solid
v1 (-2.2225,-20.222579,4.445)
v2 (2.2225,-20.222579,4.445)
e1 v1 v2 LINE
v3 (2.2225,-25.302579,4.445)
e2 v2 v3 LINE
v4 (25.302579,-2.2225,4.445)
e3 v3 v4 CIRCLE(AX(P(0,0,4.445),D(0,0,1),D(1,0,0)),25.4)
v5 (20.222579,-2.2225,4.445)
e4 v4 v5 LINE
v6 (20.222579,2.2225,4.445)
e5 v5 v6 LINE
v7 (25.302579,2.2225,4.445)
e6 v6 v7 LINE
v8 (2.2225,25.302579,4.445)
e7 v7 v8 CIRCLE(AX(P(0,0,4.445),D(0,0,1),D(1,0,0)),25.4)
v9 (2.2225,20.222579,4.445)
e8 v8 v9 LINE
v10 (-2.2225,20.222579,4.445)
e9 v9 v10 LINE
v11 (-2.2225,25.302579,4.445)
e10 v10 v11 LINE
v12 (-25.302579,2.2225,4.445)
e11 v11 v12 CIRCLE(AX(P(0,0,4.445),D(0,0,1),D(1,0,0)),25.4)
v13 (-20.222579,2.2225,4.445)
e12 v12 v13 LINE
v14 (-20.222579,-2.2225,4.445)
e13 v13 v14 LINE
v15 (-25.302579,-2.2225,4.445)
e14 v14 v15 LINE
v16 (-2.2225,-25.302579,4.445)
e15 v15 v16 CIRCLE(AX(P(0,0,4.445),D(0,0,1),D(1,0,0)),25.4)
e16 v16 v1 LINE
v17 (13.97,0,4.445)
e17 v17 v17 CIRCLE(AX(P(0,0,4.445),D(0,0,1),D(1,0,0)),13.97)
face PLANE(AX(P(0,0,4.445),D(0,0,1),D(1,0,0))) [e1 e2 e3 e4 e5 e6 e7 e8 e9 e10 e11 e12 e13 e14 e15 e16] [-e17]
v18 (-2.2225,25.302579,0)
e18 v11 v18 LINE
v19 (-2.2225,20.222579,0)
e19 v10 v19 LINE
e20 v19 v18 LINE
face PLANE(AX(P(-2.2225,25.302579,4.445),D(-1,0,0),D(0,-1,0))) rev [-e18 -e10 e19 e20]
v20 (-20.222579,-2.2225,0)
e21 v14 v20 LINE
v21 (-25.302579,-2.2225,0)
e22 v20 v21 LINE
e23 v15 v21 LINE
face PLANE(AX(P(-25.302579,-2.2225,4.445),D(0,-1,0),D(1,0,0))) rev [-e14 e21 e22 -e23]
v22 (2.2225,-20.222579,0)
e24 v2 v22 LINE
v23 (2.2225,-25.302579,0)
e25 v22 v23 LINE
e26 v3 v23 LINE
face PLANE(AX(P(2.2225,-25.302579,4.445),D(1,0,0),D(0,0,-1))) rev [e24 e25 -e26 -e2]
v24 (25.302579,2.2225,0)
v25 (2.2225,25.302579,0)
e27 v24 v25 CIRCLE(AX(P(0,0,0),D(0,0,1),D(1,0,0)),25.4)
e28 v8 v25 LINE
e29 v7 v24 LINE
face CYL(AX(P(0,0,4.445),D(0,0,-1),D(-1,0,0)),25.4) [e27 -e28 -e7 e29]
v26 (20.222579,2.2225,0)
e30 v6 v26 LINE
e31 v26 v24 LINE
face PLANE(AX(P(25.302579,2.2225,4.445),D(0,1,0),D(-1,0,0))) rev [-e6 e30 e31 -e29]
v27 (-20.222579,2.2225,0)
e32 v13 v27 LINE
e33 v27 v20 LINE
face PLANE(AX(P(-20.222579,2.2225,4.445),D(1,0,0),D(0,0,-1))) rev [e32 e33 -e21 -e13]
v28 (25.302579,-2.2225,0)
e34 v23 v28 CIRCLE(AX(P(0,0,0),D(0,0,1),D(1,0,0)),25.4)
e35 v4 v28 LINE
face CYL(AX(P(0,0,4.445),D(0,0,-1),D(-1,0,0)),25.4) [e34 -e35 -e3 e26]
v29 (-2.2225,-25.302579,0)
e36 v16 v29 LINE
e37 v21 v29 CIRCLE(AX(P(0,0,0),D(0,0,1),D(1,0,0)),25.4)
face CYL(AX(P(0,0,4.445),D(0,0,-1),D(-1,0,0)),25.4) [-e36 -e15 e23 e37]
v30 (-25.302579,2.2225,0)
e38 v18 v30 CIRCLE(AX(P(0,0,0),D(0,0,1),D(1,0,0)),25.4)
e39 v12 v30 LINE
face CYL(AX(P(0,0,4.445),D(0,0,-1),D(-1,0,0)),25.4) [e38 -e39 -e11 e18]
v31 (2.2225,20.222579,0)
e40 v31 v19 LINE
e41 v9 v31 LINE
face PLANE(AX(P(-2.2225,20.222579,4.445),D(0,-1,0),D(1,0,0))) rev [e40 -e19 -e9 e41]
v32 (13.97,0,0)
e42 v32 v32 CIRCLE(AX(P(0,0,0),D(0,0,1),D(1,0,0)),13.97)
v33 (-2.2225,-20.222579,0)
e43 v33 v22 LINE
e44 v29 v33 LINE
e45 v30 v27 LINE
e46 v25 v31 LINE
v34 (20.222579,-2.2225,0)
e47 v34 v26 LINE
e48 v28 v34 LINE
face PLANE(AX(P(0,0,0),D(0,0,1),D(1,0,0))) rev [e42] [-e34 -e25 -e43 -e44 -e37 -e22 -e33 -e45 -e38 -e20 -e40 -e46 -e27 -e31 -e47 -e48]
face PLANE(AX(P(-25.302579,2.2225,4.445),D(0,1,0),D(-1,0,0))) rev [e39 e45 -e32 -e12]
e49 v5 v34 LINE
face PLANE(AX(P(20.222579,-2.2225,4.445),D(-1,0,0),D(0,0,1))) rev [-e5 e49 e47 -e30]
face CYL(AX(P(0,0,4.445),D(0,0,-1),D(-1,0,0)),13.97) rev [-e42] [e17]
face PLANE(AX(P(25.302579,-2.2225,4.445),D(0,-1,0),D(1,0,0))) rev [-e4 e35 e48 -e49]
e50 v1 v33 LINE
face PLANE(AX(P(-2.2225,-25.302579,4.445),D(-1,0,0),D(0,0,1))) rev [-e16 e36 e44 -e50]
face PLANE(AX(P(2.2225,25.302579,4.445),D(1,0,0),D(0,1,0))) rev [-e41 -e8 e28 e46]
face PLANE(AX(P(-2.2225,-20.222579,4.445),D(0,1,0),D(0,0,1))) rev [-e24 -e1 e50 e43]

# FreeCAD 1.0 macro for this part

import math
import FreeCAD as App
import Part
import Sketcher
from FreeCAD import Vector
Q = App.Units.Quantity

doc = App.newDocument("Part")
body = doc.addObject("PartDesign::Body", "Body")

# Sketch on XY plane
sketch1 = body.newObject("Sketcher::SketchObject", "Sketch")
sketch1.AttachmentSupport = (doc.getObject("XY_Plane"), [""])
sketch1.MapMode = "FlatFace"
sketch1.addGeometry(Part.LineSegment(Vector(25.3, -2.2, 0), Vector(20.2, -2.2, 0)), False)
sketch1.addGeometry(Part.LineSegment(Vector(20.2, -2.2, 0), Vector(20.2, 2.2, 0)), False)
sketch1.addGeometry(Part.LineSegment(Vector(20.2, 2.2, 0), Vector(25.3, 2.2, 0)), False)
sketch1.addGeometry(Part.ArcOfCircle(Part.Circle(Vector(0, 0, 0), Vector(0, 0, 1), 25.4), math.radians(5), math.radians(85)), False)
sketch1.addGeometry(Part.LineSegment(Vector(2.2, 25.3, 0), Vector(2.2, 20.2, 0)), False)
sketch1.addGeometry(Part.LineSegment(Vector(2.2, 20.2, 0), Vector(-2.2, 20.2, 0)), False)
sketch1.addGeometry(Part.LineSegment(Vector(-2.2, 20.2, 0), Vector(-2.2, 25.3, 0)), False)
sketch1.addGeometry(Part.ArcOfCircle(Part.Circle(Vector(0, 0, 0), Vector(0, 0, 1), 25.4), math.radians(95), math.radians(175)), False)
sketch1.addGeometry(Part.LineSegment(Vector(-25.3, 2.2, 0), Vector(-20.2, 2.2, 0)), False)
sketch1.addGeometry(Part.LineSegment(Vector(-20.2, 2.2, 0), Vector(-20.2, -2.2, 0)), False)
sketch1.addGeometry(Part.LineSegment(Vector(-20.2, -2.2, 0), Vector(-25.3, -2.2, 0)), False)
sketch1.addGeometry(Part.ArcOfCircle(Part.Circle(Vector(0, 0, 0), Vector(0, 0, 1), 25.4), math.radians(-175), math.radians(-95)), False)
sketch1.addGeometry(Part.LineSegment(Vector(-2.2, -25.3, 0), Vector(-2.2, -20.2, 0)), False)
sketch1.addGeometry(Part.LineSegment(Vector(-2.2, -20.2, 0), Vector(2.2, -20.2, 0)), False)
sketch1.addGeometry(Part.LineSegment(Vector(2.2, -20.2, 0), Vector(2.2, -25.3, 0)), False)
sketch1.addGeometry(Part.ArcOfCircle(Part.Circle(Vector(0, 0, 0), Vector(0, 0, 1), 25.4), math.radians(-85), math.radians(-5)), False)
sketch1.addGeometry(Part.Circle(Vector(0, 0, 0), Vector(0, 0, 1), 14), False)
sketch1.addConstraint(Sketcher.Constraint("Coincident", 0, 2, 1, 1))
sketch1.addConstraint(Sketcher.Constraint("Coincident", 1, 2, 2, 1))
sketch1.addConstraint(Sketcher.Constraint("Coincident", 2, 2, 3, 1))
sketch1.addConstraint(Sketcher.Constraint("Coincident", 3, 2, 4, 1))
sketch1.addConstraint(Sketcher.Constraint("Coincident", 4, 2, 5, 1))
sketch1.addConstraint(Sketcher.Constraint("Coincident", 5, 2, 6, 1))
sketch1.addConstraint(Sketcher.Constraint("Coincident", 6, 2, 7, 1))
sketch1.addConstraint(Sketcher.Constraint("Coincident", 7, 2, 8, 1))
sketch1.addConstraint(Sketcher.Constraint("Coincident", 8, 2, 9, 1))
sketch1.addConstraint(Sketcher.Constraint("Coincident", 9, 2, 10, 1))
sketch1.addConstraint(Sketcher.Constraint("Coincident", 10, 2, 11, 1))
sketch1.addConstraint(Sketcher.Constraint("Coincident", 11, 2, 12, 1))
sketch1.addConstraint(Sketcher.Constraint("Coincident", 12, 2, 13, 1))
sketch1.addConstraint(Sketcher.Constraint("Coincident", 13, 2, 14, 1))
sketch1.addConstraint(Sketcher.Constraint("Coincident", 14, 2, 15, 1))
sketch1.addConstraint(Sketcher.Constraint("Coincident", 15, 2, 0, 1))
sketch1.addConstraint(Sketcher.Constraint("Horizontal", 0))
sketch1.addConstraint(Sketcher.Constraint("Vertical", 1))
sketch1.addConstraint(Sketcher.Constraint("Horizontal", 2))
sketch1.addConstraint(Sketcher.Constraint("Vertical", 4))
sketch1.addConstraint(Sketcher.Constraint("Horizontal", 5))
sketch1.addConstraint(Sketcher.Constraint("Vertical", 6))
sketch1.addConstraint(Sketcher.Constraint("Horizontal", 8))
sketch1.addConstraint(Sketcher.Constraint("Vertical", 9))
sketch1.addConstraint(Sketcher.Constraint("Horizontal", 10))
sketch1.addConstraint(Sketcher.Constraint("Vertical", 12))
sketch1.addConstraint(Sketcher.Constraint("Horizontal", 13))
sketch1.addConstraint(Sketcher.Constraint("Vertical", 14))
sketch1.addConstraint(Sketcher.Constraint("Coincident", 3, 3, -1, 1))
sketch1.addConstraint(Sketcher.Constraint("Coincident", 7, 3, -1, 1))
sketch1.addConstraint(Sketcher.Constraint("Coincident", 11, 3, -1, 1))
sketch1.addConstraint(Sketcher.Constraint("Coincident", 15, 3, -1, 1))
sketch1.addConstraint(Sketcher.Constraint("Coincident", 16, 3, -1, 1))
sketch1.addConstraint(Sketcher.Constraint("Equal", 3, 7))
sketch1.addConstraint(Sketcher.Constraint("Equal", 7, 11))
sketch1.addConstraint(Sketcher.Constraint("Equal", 11, 15))
sketch1.addConstraint(Sketcher.Constraint("Symmetric", 0, 2, 8, 2, -1, 1))
sketch1.addConstraint(Sketcher.Constraint("Symmetric", 4, 2, 12, 2, -1, 1))
sketch1.addConstraint(Sketcher.Constraint("Horizontal", 3, 2, 6, 2))
sketch1.addConstraint(Sketcher.Constraint("Horizontal", 2, 2, 7, 2))
sketch1.addConstraint(Sketcher.Constraint("Horizontal", 0, 2, 9, 2))
sketch1.addConstraint(Sketcher.Constraint("Horizontal", 11, 2, 14, 2))
sketch1.addConstraint(Sketcher.Constraint("Equal", 13, 1))
sketch1.addConstraint(Sketcher.Constraint("Equal", 10, 4))
sketch1.addConstraint(Sketcher.Constraint("Radius", 3, Q("1 in")))
sketch1.addConstraint(Sketcher.Constraint("Diameter", 16, Q("1.1 in")))
sketch1.addConstraint(Sketcher.Constraint("DistanceX", 0, 2, 0, 1, Q("0.2 in")))
sketch1.addConstraint(Sketcher.Constraint("DistanceX", 5, 2, 5, 1, Q("0.175 in")))
pad1 = body.newObject("PartDesign::Pad", "Pad")
pad1.Profile = sketch1
pad1.Length = Q("0.175 in")

doc.recompute()
